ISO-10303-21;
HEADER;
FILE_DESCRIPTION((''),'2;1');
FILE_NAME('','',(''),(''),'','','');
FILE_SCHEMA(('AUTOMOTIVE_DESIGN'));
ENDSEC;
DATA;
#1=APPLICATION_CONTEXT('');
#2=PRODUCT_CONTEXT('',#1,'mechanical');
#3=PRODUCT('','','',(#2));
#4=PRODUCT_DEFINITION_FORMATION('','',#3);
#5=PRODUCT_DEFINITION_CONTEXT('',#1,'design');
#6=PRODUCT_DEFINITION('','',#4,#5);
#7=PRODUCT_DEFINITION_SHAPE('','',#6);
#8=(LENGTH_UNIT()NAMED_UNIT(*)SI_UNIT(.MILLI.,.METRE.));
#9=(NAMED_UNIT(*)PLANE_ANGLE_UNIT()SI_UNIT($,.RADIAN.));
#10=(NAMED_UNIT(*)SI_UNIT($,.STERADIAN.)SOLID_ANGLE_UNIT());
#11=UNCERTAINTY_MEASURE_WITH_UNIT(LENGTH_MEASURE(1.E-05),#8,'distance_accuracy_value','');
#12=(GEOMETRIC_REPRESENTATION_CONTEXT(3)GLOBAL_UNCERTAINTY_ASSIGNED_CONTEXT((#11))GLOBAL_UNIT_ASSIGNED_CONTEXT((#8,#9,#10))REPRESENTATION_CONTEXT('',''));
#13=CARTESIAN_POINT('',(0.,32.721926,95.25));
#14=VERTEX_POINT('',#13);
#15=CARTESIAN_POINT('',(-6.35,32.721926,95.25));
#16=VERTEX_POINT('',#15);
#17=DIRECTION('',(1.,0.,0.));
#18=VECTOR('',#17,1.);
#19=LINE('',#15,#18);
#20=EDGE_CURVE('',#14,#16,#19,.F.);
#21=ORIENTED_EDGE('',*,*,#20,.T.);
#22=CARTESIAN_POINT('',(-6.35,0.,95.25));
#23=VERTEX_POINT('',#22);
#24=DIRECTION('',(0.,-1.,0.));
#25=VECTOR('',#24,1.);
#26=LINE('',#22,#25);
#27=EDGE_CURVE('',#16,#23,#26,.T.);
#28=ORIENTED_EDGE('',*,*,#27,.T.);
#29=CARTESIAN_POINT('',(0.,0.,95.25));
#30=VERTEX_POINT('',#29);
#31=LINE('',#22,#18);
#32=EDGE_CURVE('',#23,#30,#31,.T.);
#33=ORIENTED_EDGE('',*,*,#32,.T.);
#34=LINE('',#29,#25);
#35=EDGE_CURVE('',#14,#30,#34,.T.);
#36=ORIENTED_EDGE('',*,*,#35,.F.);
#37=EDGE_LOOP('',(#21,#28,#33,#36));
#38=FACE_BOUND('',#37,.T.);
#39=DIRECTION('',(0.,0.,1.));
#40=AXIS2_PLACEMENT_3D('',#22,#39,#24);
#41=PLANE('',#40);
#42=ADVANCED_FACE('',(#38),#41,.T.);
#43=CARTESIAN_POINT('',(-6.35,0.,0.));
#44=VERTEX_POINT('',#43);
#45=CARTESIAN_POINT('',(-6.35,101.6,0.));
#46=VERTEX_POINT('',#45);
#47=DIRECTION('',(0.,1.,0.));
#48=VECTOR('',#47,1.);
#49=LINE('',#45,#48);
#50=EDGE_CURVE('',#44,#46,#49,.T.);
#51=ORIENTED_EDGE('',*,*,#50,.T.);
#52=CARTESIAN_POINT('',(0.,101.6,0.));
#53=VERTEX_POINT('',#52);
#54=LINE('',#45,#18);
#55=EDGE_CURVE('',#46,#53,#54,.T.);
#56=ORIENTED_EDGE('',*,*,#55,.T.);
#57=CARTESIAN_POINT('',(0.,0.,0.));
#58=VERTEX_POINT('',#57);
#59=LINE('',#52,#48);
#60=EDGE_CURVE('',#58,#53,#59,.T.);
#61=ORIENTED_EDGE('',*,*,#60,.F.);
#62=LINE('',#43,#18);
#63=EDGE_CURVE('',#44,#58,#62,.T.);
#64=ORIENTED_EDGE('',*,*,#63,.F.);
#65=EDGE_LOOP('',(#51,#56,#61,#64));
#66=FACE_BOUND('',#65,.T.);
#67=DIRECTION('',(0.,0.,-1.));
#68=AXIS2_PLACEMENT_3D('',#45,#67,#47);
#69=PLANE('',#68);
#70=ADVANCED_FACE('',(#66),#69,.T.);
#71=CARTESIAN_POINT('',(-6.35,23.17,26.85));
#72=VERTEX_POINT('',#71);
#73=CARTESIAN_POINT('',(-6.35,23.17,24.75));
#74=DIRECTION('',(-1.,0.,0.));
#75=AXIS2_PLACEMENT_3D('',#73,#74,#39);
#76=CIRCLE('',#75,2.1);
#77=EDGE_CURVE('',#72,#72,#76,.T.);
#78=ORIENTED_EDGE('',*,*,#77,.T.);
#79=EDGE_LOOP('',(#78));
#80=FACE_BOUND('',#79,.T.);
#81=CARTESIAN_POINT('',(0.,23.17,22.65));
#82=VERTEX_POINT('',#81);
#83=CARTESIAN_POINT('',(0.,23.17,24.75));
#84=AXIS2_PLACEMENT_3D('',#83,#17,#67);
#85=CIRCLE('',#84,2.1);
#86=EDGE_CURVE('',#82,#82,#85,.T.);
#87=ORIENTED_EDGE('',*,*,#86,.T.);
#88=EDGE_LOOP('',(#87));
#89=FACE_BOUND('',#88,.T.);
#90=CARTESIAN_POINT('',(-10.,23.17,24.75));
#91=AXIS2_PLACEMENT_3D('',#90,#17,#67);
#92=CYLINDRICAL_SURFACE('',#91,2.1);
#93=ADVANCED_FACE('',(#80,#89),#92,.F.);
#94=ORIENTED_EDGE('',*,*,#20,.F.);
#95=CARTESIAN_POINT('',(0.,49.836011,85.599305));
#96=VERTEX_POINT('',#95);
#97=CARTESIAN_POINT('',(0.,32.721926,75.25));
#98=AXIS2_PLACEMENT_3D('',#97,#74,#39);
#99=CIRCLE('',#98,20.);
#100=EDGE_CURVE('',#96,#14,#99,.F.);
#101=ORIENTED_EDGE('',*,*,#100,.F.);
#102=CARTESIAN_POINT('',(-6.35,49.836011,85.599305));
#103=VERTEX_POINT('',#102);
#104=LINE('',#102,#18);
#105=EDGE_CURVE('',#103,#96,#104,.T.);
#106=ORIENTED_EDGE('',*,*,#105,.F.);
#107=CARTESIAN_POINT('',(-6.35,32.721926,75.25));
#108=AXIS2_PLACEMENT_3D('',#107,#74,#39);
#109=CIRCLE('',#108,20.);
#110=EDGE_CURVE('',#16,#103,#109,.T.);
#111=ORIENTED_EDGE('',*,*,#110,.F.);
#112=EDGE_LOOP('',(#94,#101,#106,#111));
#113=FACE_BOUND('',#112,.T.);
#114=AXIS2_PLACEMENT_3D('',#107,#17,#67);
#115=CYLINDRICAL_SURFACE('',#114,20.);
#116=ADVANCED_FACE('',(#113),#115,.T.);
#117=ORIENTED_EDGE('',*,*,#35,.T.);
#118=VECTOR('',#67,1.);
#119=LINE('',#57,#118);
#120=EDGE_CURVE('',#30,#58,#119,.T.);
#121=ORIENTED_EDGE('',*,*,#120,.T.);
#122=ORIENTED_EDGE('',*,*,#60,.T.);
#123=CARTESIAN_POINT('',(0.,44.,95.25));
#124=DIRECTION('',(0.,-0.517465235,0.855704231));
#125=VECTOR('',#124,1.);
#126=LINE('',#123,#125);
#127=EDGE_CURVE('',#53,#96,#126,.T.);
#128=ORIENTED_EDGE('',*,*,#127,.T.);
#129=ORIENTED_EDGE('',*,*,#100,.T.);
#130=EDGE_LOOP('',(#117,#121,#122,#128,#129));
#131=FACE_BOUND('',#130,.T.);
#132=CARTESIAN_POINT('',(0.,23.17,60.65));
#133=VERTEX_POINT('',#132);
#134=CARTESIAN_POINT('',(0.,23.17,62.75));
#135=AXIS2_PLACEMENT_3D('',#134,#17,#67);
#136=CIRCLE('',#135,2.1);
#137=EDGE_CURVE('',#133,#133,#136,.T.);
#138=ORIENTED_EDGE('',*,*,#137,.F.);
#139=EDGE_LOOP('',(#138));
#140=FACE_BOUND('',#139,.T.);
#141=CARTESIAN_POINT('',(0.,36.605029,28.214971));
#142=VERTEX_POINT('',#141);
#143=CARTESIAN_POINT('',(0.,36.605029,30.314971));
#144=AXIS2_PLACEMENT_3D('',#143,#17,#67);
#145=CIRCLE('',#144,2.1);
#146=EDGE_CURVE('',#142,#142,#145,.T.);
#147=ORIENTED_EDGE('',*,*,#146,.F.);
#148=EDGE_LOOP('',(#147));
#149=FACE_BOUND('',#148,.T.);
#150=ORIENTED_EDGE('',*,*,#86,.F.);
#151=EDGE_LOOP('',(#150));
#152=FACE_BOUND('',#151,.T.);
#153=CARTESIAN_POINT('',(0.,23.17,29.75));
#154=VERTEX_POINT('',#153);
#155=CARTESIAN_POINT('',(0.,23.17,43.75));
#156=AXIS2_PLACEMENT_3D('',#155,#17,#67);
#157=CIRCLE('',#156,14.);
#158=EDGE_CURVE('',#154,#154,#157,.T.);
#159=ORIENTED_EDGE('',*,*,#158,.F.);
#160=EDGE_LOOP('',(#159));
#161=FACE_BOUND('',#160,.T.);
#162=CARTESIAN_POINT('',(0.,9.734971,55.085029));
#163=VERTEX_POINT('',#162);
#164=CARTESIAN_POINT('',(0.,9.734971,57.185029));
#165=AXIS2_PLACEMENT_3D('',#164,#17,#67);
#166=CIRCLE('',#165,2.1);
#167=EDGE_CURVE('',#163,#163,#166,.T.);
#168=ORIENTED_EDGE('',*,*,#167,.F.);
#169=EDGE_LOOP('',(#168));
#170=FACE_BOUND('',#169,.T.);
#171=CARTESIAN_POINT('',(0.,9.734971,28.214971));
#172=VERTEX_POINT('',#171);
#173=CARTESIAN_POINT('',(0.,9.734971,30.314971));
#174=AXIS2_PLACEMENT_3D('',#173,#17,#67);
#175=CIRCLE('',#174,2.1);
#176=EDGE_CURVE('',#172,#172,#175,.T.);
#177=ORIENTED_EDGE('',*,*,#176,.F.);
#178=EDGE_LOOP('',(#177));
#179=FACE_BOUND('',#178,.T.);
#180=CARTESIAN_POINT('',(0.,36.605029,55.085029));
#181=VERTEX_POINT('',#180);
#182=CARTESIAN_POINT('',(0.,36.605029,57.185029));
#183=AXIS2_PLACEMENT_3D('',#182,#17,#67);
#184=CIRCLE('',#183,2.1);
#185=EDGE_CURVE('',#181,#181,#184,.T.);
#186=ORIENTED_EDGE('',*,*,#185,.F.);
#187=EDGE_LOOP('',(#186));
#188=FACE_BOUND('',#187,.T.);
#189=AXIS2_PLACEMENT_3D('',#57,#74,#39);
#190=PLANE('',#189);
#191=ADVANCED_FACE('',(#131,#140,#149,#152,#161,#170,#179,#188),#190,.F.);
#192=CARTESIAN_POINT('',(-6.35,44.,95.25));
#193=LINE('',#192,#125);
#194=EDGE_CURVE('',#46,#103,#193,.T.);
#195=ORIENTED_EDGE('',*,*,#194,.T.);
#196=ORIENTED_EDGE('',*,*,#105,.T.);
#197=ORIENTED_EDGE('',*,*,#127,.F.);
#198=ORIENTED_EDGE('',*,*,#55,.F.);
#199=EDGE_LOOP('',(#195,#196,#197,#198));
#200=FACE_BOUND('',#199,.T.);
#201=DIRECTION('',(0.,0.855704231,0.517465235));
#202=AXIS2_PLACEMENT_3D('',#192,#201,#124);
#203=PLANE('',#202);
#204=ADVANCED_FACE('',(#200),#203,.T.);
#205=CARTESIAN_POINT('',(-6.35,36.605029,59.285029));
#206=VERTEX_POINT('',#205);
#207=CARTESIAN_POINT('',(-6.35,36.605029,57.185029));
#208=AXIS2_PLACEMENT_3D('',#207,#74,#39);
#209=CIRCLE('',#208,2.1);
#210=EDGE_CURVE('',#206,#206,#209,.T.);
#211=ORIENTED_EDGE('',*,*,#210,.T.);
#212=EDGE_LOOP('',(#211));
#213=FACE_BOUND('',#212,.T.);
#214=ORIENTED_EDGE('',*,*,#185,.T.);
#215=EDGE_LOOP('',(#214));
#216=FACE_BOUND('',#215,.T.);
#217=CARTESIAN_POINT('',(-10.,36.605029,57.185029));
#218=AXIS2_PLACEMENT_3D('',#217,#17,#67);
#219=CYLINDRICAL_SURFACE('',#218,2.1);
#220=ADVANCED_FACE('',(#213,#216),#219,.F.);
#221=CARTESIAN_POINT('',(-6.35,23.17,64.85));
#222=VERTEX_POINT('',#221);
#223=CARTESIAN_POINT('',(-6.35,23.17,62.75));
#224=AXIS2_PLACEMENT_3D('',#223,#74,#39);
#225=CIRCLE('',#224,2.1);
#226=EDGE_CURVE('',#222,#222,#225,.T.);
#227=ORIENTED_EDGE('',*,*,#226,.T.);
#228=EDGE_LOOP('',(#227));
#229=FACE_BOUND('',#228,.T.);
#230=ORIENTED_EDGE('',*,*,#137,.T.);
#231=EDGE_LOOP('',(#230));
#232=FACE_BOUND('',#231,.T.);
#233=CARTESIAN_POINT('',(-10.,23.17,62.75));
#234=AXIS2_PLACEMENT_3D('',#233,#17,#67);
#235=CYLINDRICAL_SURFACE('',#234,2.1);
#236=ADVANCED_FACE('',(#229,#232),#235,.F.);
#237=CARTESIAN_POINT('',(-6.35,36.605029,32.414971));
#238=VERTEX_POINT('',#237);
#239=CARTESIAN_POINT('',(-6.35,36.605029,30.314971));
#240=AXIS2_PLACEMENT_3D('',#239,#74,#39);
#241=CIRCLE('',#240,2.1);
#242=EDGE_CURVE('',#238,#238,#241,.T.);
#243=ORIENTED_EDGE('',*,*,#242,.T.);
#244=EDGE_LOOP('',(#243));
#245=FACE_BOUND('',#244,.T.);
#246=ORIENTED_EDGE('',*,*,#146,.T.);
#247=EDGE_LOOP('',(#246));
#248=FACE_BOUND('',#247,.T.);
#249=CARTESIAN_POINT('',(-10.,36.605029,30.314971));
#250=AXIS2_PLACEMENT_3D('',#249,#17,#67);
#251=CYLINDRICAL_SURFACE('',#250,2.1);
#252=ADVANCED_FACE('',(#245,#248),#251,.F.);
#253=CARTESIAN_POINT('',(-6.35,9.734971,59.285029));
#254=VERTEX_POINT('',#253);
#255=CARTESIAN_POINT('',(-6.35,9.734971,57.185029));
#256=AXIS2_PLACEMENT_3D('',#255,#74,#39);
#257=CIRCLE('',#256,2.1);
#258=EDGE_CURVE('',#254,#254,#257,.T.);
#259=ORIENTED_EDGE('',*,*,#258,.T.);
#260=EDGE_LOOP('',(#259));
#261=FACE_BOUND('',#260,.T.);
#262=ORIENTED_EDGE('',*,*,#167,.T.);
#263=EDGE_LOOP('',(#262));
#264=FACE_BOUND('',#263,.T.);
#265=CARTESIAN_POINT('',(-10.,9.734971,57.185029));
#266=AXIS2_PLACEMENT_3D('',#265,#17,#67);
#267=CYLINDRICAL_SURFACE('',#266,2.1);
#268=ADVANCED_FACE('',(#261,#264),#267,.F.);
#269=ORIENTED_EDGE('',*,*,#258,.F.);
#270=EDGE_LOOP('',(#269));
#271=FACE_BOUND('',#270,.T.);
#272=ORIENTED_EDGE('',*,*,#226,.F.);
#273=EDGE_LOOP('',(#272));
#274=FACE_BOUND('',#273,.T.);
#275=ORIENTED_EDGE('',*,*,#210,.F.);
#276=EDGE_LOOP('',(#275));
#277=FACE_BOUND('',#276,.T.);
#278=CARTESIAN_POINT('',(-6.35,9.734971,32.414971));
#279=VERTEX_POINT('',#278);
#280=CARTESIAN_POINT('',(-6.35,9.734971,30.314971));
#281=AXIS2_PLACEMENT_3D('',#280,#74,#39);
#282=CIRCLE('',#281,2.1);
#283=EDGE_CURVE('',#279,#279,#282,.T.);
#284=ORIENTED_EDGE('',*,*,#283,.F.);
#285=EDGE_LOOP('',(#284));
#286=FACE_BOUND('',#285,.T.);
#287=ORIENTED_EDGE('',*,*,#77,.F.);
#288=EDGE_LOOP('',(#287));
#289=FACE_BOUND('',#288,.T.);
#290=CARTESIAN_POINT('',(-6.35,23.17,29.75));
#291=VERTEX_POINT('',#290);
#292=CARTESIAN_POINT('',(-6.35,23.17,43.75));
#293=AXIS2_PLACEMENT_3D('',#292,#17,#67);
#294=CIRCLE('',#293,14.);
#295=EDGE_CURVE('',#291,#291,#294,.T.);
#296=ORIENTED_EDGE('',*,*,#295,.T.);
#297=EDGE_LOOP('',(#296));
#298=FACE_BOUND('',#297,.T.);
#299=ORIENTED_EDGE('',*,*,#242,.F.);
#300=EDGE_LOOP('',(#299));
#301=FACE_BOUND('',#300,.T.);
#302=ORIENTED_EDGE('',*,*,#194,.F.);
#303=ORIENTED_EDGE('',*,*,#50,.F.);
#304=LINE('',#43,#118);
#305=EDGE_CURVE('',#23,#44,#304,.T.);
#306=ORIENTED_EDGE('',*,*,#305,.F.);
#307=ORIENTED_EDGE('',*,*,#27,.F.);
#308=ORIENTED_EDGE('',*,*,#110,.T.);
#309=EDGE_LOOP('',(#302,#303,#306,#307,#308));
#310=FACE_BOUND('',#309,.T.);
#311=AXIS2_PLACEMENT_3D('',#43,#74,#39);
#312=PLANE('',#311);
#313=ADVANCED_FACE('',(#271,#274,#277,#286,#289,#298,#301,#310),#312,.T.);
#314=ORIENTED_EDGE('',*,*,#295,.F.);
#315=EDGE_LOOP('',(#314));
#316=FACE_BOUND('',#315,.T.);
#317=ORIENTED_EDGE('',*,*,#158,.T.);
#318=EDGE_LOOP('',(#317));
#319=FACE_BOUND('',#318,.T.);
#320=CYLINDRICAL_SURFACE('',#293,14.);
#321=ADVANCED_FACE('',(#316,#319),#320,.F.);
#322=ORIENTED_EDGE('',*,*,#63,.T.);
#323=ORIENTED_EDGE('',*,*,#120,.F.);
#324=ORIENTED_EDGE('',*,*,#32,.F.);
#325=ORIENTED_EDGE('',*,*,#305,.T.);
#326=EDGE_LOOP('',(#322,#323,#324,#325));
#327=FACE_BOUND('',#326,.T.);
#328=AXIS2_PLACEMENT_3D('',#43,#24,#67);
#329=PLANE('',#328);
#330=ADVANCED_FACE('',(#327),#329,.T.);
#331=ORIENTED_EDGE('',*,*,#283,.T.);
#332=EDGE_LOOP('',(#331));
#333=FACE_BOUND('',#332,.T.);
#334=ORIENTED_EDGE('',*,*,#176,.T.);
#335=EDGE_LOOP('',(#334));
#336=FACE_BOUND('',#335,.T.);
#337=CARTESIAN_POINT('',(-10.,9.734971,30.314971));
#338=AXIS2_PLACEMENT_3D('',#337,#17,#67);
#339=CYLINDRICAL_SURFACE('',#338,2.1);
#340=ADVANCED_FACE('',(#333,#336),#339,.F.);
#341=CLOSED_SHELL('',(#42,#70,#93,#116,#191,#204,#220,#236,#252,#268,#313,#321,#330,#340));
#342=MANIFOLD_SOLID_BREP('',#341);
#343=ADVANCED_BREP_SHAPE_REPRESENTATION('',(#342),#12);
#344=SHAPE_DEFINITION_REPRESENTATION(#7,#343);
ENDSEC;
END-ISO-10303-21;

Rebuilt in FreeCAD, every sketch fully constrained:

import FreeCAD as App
import Part
import Sketcher


def edges_at(feature, points):
    """Names of the edges that pass closest to the given points."""
    edges = feature.Shape.Edges
    near = lambda p: min(range(len(edges)), key=lambda i: edges[i].distToShape(Part.Vertex(*p))[0])
    return sorted({f"Edge{near(p) + 1}" for p in points})

doc = App.newDocument("Part")
body = doc.addObject("PartDesign::Body", "Body")

# Sketch on YZ plane
sketch1 = body.newObject("Sketcher::SketchObject", "Sketch")
sketch1.AttachmentSupport = (doc.getObject("YZ_Plane"), [""])
sketch1.MapMode = "FlatFace"
sketch1.addGeometry(Part.LineSegment(App.Vector(0, 95.25, 0), App.Vector(0, 0, 0)), False)
sketch1.addGeometry(Part.LineSegment(App.Vector(0, 0, 0), App.Vector(101.6, 0, 0)), False)
sketch1.addGeometry(Part.LineSegment(App.Vector(101.6, 0, 0), App.Vector(44, 95.25, 0)), False)
sketch1.addGeometry(Part.LineSegment(App.Vector(44, 95.25, 0), App.Vector(0, 95.25, 0)), False)
sketch1.addConstraint(Sketcher.Constraint("Coincident", 0, 2, 1, 1))
sketch1.addConstraint(Sketcher.Constraint("Coincident", 1, 2, 2, 1))
sketch1.addConstraint(Sketcher.Constraint("Coincident", 2, 2, 3, 1))
sketch1.addConstraint(Sketcher.Constraint("Coincident", 3, 2, 0, 1))
sketch1.addConstraint(Sketcher.Constraint("Vertical", 0))
sketch1.addConstraint(Sketcher.Constraint("Horizontal", 1))
sketch1.addConstraint(Sketcher.Constraint("Horizontal", 3))
sketch1.addConstraint(Sketcher.Constraint("Coincident", 0, 2, -1, 1))
sketch1.addConstraint(Sketcher.Constraint("DistanceX", 3, 2, 3, 1, 44.0))
sketch1.addConstraint(Sketcher.Constraint("DistanceX", 1, 1, 1, 2, 101.6))
sketch1.addConstraint(Sketcher.Constraint("DistanceY", 0, 2, 0, 1, 95.25))
pad1 = body.newObject("PartDesign::Pad", "Pad")
pad1.Profile = sketch1
pad1.Length = 6.35
pad1.Reversed = True
doc.recompute()

fillet = body.newObject("PartDesign::Fillet", "Fillet")
fillet.Base = (pad1, edges_at(pad1, [(-3.175, 44, 95.25)]))
fillet.Radius = 20

# Sketch on YZ plane
sketch2 = body.newObject("Sketcher::SketchObject", "Sketch001")
sketch2.AttachmentSupport = (doc.getObject("YZ_Plane"), [""])
sketch2.MapMode = "FlatFace"
sketch2.addGeometry(Part.Circle(App.Vector(23.17, 43.75, 0), App.Vector(0, 0, 1), 14), False)
sketch2.addConstraint(Sketcher.Constraint("Diameter", 0, 28.0))
sketch2.addConstraint(Sketcher.Constraint("DistanceX", -1, 1, 0, 3, 23.17))
sketch2.addConstraint(Sketcher.Constraint("DistanceY", -1, 1, 0, 3, 43.75))
pocket1 = body.newObject("PartDesign::Pocket", "Pocket")
pocket1.Profile = sketch2
pocket1.Length = 6.35

# Sketch on YZ plane
sketch3 = body.newObject("Sketcher::SketchObject", "Sketch002")
sketch3.AttachmentSupport = (doc.getObject("YZ_Plane"), [""])
sketch3.MapMode = "FlatFace"
sketch3.addGeometry(Part.Circle(App.Vector(36.605029, 57.185029, 0), App.Vector(0, 0, 1), 2.1), False)
sketch3.addGeometry(Part.Circle(App.Vector(23.17, 62.75, 0), App.Vector(0, 0, 1), 2.1), False)
sketch3.addGeometry(Part.Circle(App.Vector(9.734971, 57.185029, 0), App.Vector(0, 0, 1), 2.1), False)
sketch3.addGeometry(Part.Circle(App.Vector(9.734971, 30.314971, 0), App.Vector(0, 0, 1), 2.1), False)
sketch3.addGeometry(Part.Circle(App.Vector(23.17, 24.75, 0), App.Vector(0, 0, 1), 2.1), False)
sketch3.addGeometry(Part.Circle(App.Vector(36.605029, 30.314971, 0), App.Vector(0, 0, 1), 2.1), False)
sketch3.addConstraint(Sketcher.Constraint("Equal", 0, 1))
sketch3.addConstraint(Sketcher.Constraint("Equal", 1, 2))
sketch3.addConstraint(Sketcher.Constraint("Equal", 2, 3))
sketch3.addConstraint(Sketcher.Constraint("Equal", 3, 4))
sketch3.addConstraint(Sketcher.Constraint("Equal", 4, 5))
sketch3.addConstraint(Sketcher.Constraint("Horizontal", 0, 3, 2, 3))
sketch3.addConstraint(Sketcher.Constraint("Horizontal", 3, 3, 5, 3))
sketch3.addConstraint(Sketcher.Constraint("Vertical", 2, 3, 3, 3))
sketch3.addConstraint(Sketcher.Constraint("Vertical", 1, 3, 4, 3))
sketch3.addConstraint(Sketcher.Constraint("Vertical", 0, 3, 5, 3))
sketch3.addConstraint(Sketcher.Constraint("Diameter", 0, 4.2))
sketch3.addConstraint(Sketcher.Constraint("DistanceY", 4, 3, 1, 3, 38.0))
sketch3.addConstraint(Sketcher.Constraint("DistanceX", -1, 1, 1, 3, 23.17))
sketch3.addConstraint(Sketcher.Constraint("DistanceY", -1, 1, 1, 3, 62.75))
sketch3.addConstraint(Sketcher.Constraint("DistanceX", -1, 1, 0, 3, 36.605029))
sketch3.addConstraint(Sketcher.Constraint("DistanceY", -1, 1, 0, 3, 57.185029))
sketch3.addConstraint(Sketcher.Constraint("DistanceX", -1, 1, 2, 3, 9.734971))
sketch3.addConstraint(Sketcher.Constraint("DistanceY", -1, 1, 3, 3, 30.314971))
pocket2 = body.newObject("PartDesign::Pocket", "Pocket001")
pocket2.Profile = sketch3
pocket2.Length = 10

doc.recompute()
